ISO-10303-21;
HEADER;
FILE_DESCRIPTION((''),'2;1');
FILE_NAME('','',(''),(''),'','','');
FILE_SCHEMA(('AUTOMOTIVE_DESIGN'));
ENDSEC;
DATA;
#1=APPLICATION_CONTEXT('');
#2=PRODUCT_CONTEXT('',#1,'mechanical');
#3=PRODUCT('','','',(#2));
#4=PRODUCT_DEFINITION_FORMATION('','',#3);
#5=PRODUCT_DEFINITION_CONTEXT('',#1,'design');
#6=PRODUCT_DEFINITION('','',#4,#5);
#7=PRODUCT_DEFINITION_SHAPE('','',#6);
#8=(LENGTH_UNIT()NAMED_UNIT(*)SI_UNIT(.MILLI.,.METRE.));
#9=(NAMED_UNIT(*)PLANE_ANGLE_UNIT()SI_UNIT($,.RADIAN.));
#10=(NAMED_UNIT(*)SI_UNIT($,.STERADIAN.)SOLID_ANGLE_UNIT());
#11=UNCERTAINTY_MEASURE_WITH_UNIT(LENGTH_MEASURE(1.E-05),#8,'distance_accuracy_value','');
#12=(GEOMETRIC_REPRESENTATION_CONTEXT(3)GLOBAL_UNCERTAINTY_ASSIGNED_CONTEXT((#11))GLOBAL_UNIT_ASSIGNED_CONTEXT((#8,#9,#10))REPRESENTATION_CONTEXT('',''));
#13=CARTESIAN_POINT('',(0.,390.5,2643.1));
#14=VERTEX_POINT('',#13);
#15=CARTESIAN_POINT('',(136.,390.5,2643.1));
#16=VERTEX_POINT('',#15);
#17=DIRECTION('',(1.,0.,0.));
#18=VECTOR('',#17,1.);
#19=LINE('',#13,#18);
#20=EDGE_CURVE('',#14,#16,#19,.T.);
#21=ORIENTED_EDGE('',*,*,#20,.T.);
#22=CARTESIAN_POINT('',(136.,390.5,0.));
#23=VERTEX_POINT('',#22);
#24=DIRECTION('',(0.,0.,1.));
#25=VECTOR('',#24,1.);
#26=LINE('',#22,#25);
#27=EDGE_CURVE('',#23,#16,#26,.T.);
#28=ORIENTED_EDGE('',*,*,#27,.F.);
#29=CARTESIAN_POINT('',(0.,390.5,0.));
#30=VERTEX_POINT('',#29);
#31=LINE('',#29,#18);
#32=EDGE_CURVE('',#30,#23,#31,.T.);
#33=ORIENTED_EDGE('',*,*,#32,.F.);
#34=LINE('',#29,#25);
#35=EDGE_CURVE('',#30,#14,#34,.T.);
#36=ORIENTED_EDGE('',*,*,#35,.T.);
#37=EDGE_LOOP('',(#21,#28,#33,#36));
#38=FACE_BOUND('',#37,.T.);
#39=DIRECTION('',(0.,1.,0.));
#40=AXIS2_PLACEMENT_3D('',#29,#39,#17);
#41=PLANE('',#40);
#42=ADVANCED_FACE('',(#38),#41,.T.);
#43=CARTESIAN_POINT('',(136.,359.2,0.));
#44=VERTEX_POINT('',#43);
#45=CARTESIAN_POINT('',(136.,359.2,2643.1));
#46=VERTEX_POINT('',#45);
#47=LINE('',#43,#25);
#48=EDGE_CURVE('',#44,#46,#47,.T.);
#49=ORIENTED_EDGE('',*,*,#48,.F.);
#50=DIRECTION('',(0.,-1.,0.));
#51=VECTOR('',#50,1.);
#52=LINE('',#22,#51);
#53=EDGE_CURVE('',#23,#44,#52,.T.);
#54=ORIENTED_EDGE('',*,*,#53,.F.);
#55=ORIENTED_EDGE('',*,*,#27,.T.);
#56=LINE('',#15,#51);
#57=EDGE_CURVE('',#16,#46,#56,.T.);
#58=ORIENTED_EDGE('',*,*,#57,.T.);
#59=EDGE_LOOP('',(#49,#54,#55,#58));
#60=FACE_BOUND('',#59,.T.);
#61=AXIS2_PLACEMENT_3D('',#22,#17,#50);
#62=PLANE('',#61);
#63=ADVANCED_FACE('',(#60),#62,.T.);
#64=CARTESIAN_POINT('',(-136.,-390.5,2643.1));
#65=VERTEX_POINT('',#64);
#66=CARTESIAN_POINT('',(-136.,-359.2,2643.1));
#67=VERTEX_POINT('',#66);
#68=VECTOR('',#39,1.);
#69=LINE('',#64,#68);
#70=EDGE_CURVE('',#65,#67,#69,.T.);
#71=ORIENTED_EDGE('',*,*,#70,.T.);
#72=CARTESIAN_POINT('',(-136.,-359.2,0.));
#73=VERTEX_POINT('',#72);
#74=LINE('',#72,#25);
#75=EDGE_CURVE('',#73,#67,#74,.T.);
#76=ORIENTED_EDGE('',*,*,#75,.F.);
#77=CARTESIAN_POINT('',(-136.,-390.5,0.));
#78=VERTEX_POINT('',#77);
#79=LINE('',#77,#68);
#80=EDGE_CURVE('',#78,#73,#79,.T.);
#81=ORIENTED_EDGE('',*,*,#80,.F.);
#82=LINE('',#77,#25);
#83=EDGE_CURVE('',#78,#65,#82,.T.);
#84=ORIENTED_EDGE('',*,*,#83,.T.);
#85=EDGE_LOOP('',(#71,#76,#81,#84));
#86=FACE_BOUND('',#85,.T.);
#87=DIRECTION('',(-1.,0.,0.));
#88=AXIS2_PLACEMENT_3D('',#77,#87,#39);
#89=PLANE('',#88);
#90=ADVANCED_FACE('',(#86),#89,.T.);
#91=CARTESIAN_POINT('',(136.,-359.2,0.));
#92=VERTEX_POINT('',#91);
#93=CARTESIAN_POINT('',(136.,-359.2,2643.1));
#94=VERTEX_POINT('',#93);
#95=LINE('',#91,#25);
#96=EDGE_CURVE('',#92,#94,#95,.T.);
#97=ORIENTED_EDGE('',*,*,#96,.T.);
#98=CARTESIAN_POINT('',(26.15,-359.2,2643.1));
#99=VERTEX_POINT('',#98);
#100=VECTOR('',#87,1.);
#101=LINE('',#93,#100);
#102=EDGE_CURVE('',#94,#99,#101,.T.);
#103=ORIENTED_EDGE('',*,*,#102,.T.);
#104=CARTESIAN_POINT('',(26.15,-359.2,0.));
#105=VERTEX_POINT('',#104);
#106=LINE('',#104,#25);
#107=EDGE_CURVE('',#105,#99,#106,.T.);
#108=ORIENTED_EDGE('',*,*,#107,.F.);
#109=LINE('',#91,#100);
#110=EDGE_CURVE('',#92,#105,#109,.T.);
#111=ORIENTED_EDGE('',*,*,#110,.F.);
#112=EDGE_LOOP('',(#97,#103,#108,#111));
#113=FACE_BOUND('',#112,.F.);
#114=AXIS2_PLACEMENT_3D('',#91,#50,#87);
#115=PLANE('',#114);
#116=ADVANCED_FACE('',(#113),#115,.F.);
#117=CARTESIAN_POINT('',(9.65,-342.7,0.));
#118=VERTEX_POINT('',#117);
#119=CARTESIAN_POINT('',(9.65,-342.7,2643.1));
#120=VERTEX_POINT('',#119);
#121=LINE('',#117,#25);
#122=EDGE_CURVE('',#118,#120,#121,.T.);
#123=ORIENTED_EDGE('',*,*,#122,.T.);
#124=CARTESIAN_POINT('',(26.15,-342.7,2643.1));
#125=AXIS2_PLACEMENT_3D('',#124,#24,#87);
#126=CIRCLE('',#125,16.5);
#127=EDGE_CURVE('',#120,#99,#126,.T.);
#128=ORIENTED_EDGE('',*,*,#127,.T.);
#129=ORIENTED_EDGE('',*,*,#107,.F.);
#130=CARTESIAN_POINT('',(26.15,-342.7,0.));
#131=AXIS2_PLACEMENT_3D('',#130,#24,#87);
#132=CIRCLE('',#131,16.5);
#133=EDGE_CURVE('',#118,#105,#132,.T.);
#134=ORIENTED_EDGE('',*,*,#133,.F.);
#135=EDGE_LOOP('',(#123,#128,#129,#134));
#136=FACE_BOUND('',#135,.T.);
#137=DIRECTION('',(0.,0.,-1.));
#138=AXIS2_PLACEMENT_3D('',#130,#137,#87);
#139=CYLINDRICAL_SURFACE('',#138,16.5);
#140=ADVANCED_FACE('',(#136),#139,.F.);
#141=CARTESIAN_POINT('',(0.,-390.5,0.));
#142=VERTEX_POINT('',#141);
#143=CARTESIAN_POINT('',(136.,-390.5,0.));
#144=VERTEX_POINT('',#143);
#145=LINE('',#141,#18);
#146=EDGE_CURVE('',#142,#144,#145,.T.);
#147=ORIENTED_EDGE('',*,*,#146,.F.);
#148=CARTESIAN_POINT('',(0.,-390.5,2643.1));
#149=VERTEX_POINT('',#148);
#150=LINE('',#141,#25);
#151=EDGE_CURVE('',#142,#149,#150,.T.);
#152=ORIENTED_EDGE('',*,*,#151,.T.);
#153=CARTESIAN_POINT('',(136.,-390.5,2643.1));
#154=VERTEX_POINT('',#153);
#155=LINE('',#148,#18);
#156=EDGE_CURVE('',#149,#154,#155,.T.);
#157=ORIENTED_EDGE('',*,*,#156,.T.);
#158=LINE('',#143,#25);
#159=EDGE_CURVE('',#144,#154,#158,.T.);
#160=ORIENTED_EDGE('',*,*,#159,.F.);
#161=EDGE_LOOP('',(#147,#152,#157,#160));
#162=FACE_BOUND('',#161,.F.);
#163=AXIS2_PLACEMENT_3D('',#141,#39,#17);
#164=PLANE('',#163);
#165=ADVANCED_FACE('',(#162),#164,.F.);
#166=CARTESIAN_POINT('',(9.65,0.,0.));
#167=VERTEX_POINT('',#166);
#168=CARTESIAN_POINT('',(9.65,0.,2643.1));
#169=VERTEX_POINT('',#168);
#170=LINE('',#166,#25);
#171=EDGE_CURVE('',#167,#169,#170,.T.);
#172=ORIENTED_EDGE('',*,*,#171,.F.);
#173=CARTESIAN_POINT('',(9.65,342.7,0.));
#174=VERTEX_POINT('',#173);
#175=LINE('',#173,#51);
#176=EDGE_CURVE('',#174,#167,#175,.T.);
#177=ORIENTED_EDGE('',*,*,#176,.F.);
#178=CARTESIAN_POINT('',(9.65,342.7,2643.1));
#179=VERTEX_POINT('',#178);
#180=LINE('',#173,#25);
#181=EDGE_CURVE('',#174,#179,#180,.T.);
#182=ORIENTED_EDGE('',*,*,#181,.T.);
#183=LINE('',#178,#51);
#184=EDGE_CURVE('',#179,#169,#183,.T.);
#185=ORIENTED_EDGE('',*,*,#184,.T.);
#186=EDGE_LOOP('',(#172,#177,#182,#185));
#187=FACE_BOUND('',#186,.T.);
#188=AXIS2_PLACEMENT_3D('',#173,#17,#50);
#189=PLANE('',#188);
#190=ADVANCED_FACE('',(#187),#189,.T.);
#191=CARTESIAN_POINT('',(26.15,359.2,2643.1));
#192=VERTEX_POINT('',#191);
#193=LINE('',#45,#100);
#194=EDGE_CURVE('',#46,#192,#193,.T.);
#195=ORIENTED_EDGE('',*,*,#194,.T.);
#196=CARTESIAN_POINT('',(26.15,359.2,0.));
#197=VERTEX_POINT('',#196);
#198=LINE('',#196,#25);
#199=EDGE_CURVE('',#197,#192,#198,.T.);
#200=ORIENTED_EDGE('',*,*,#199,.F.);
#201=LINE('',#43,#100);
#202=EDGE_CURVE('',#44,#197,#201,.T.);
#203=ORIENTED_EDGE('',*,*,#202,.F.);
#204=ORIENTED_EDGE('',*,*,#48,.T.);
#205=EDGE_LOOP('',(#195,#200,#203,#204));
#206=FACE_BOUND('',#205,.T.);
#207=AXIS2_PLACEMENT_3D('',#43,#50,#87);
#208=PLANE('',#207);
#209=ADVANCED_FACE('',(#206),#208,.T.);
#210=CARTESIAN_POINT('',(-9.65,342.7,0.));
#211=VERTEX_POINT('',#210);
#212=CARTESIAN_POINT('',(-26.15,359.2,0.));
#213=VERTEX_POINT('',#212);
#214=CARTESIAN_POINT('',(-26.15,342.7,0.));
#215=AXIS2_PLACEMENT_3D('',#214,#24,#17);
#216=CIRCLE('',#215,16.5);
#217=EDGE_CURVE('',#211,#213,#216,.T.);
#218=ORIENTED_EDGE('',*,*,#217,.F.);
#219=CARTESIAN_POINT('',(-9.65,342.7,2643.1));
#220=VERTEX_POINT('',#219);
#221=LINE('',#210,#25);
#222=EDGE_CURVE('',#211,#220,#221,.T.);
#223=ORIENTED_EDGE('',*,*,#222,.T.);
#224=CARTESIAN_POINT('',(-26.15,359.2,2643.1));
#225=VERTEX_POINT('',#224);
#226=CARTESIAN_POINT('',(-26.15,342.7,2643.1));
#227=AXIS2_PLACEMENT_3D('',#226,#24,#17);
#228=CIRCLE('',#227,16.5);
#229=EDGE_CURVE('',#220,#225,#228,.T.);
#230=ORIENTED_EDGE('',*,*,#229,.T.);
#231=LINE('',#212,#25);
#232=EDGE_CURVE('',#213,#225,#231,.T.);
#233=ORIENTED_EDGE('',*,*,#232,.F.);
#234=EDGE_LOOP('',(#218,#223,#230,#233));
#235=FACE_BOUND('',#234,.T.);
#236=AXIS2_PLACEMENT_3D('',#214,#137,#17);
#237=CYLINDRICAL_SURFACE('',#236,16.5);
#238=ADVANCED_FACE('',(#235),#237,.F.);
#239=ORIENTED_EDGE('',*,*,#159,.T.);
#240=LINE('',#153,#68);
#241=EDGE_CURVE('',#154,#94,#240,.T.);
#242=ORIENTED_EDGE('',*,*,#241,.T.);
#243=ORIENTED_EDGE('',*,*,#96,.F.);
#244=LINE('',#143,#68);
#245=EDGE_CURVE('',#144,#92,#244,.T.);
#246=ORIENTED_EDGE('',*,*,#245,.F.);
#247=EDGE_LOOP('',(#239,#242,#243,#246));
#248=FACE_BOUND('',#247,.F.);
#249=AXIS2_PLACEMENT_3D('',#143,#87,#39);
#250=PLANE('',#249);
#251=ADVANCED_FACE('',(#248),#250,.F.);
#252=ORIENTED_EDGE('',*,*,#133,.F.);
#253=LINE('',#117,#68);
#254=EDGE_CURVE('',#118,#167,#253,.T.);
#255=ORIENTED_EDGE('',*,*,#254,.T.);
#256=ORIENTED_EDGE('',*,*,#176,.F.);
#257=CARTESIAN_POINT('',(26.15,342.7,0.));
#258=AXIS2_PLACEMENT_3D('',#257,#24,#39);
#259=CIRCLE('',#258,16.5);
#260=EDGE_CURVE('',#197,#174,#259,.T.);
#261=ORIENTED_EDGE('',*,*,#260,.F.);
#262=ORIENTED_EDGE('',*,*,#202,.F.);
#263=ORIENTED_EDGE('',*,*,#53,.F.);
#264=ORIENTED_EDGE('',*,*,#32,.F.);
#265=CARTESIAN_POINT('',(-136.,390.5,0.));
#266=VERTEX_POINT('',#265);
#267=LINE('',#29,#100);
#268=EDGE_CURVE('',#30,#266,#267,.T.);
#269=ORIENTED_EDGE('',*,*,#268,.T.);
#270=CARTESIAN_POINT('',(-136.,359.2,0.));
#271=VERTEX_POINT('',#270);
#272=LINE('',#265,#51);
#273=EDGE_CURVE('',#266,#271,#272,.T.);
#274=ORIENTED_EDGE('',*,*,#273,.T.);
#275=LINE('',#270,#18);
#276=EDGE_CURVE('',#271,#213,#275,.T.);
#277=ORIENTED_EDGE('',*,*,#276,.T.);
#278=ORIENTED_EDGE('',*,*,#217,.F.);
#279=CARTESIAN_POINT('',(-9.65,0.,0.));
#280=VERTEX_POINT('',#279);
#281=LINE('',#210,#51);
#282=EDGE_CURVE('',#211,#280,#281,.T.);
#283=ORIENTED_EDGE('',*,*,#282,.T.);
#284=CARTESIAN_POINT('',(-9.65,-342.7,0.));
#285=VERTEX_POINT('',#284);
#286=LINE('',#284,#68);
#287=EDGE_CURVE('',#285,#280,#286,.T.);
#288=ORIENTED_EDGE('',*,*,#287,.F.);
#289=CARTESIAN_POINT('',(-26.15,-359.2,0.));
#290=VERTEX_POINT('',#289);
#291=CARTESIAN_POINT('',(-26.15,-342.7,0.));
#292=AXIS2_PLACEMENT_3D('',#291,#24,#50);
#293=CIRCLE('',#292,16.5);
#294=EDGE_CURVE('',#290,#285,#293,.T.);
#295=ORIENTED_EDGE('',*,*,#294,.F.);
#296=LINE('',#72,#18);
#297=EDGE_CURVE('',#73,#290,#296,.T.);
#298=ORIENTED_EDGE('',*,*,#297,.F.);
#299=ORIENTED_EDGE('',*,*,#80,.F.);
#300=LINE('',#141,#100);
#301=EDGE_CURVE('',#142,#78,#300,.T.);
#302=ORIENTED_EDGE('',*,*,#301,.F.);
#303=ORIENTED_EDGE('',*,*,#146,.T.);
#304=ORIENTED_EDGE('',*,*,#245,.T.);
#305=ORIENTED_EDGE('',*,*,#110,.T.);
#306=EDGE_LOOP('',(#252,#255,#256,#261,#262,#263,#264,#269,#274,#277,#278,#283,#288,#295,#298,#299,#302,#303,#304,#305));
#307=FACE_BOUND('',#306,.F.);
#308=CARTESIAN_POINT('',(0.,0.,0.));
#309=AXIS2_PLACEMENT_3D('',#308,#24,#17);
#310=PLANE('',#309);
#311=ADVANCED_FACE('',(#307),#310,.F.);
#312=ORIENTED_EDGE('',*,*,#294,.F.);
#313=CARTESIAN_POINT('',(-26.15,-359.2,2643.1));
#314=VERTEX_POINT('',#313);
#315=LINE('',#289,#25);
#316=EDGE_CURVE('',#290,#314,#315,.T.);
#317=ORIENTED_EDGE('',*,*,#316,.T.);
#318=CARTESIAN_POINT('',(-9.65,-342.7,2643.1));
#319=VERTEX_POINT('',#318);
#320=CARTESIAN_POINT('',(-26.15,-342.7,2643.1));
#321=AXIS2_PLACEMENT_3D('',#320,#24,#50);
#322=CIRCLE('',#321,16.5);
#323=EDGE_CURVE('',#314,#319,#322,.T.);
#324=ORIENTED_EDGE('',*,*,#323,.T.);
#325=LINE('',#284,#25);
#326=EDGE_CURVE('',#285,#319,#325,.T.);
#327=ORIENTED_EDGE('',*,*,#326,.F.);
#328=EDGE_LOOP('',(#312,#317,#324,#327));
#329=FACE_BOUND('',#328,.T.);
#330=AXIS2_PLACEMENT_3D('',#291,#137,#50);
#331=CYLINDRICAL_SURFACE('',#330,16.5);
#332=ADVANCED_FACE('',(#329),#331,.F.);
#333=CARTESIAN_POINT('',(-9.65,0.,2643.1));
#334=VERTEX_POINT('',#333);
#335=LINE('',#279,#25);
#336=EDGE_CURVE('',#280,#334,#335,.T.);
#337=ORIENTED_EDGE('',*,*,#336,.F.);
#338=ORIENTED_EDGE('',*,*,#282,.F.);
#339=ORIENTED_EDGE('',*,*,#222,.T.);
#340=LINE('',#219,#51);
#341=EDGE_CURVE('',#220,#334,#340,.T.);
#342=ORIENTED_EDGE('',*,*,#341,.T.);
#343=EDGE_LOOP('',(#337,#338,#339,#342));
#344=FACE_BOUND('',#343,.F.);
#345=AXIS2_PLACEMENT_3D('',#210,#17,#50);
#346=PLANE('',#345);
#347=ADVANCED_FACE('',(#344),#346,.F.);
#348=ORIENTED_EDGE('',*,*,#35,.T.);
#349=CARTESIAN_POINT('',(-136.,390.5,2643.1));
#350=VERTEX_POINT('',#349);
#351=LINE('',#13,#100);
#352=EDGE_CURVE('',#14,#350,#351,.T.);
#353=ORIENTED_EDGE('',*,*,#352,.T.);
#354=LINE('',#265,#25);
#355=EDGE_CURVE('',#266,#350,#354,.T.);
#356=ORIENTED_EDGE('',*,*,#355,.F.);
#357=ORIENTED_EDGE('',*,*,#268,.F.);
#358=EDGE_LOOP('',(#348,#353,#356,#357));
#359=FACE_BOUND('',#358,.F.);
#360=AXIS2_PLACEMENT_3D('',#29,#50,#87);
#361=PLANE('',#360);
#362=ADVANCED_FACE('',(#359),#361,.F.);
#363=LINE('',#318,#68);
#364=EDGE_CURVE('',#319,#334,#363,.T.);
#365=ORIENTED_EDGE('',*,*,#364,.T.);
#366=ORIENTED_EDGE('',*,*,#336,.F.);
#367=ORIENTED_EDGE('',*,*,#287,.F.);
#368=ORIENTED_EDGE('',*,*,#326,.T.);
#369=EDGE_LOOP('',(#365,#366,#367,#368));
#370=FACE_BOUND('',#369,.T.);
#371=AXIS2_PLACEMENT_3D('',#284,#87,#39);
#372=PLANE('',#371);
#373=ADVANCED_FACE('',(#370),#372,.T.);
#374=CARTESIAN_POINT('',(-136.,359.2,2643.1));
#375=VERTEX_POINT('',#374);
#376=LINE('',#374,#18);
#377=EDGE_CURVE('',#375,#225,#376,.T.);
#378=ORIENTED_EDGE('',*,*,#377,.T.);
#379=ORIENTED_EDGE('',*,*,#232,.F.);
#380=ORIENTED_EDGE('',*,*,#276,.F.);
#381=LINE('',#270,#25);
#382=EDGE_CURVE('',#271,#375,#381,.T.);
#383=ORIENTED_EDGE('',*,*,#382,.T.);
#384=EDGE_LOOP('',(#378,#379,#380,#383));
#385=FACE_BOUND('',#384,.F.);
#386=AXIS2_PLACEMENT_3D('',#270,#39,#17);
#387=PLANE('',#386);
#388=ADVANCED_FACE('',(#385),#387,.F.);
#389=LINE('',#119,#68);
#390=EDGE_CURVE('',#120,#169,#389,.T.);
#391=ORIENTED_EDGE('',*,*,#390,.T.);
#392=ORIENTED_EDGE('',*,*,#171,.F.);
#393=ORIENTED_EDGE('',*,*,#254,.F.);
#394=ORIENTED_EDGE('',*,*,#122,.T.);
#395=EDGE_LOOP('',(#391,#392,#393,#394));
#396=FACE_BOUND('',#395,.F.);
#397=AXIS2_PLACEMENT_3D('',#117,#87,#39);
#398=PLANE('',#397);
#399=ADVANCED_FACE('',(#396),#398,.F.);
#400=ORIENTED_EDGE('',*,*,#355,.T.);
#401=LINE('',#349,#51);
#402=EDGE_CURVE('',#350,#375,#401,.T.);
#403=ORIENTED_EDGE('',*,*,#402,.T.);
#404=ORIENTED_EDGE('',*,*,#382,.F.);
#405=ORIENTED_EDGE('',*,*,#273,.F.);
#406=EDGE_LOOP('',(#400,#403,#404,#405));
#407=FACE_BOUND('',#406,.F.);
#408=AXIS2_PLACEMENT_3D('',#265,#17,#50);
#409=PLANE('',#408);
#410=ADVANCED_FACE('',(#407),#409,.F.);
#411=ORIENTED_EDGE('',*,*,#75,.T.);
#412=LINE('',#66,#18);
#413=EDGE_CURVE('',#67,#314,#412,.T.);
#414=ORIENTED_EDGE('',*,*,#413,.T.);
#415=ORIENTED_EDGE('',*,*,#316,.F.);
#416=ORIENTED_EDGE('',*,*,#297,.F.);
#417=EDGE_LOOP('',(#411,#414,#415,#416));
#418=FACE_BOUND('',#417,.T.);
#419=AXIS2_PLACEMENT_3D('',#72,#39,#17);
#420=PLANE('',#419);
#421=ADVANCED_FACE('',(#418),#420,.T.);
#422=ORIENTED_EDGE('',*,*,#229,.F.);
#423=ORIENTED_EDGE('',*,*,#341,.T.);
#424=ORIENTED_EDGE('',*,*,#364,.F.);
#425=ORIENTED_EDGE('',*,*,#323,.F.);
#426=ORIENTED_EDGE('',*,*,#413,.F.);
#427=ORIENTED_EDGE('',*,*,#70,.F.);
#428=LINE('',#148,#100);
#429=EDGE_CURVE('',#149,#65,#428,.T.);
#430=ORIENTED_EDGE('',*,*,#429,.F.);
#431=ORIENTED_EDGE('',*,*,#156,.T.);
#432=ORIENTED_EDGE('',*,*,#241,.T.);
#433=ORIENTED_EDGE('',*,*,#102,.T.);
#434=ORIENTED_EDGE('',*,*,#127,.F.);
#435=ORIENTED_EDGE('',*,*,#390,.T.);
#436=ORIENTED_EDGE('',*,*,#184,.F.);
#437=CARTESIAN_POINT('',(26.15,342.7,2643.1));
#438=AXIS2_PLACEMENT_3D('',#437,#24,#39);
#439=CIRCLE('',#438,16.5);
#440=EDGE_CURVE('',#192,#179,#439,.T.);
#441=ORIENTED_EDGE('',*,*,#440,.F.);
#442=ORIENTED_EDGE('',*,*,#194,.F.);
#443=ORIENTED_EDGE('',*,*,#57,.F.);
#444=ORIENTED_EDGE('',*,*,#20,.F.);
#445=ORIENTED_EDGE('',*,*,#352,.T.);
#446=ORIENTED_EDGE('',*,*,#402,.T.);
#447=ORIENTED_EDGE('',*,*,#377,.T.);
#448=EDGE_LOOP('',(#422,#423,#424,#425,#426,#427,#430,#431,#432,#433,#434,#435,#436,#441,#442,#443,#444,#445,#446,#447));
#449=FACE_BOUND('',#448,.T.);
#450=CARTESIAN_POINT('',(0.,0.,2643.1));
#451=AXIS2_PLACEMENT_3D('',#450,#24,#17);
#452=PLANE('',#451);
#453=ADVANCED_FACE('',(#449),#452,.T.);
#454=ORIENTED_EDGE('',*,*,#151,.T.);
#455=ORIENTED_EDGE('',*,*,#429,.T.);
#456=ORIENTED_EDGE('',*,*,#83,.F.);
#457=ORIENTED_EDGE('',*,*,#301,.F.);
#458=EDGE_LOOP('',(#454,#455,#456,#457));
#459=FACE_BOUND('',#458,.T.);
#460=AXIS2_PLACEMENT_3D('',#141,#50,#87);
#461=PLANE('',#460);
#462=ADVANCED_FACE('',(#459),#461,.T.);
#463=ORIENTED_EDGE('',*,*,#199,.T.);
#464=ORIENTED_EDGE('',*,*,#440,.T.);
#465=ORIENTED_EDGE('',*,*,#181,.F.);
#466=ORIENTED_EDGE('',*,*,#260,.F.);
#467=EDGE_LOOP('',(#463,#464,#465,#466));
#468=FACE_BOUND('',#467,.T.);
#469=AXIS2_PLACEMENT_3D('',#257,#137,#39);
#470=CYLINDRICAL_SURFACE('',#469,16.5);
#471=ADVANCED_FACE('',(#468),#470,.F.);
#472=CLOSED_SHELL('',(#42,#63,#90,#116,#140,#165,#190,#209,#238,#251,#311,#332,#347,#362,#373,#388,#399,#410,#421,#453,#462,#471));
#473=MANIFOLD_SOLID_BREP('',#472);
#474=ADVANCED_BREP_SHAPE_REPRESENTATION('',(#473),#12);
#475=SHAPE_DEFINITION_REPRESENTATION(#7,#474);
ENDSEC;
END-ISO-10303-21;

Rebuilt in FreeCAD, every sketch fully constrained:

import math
import FreeCAD as App
import Part
import Sketcher
Q = App.Units.Quantity

doc = App.newDocument("Part")
body = doc.addObject("PartDesign::Body", "Body")

# Sketch on XY plane
sketch1 = body.newObject("Sketcher::SketchObject", "Sketch")
sketch1.AttachmentSupport = (doc.getObject("XY_Plane"), [""])
sketch1.MapMode = "FlatFace"
sketch1.addGeometry(Part.LineSegment(App.Vector(-136, -359, 0), App.Vector(-136, -390, 0)), False)
sketch1.addGeometry(Part.LineSegment(App.Vector(-136, -390, 0), App.Vector(136, -390, 0)), False)
sketch1.addGeometry(Part.LineSegment(App.Vector(136, -390, 0), App.Vector(136, -359, 0)), False)
sketch1.addGeometry(Part.LineSegment(App.Vector(136, -359, 0), App.Vector(26, -359, 0)), False)
sketch1.addGeometry(Part.ArcOfCircle(Part.Circle(App.Vector(26, -343, 0), App.Vector(0, 0, 1), 16), math.radians(180), math.radians(270)), False)
sketch1.addGeometry(Part.LineSegment(App.Vector(10, -343, 0), App.Vector(10, 343, 0)), False)
sketch1.addGeometry(Part.ArcOfCircle(Part.Circle(App.Vector(26, 343, 0), App.Vector(0, 0, 1), 16), math.radians(90), math.radians(180)), False)
sketch1.addGeometry(Part.LineSegment(App.Vector(26, 359, 0), App.Vector(136, 359, 0)), False)
sketch1.addGeometry(Part.LineSegment(App.Vector(136, 359, 0), App.Vector(136, 390, 0)), False)
sketch1.addGeometry(Part.LineSegment(App.Vector(136, 390, 0), App.Vector(-136, 390, 0)), False)
sketch1.addGeometry(Part.LineSegment(App.Vector(-136, 390, 0), App.Vector(-136, 359, 0)), False)
sketch1.addGeometry(Part.LineSegment(App.Vector(-136, 359, 0), App.Vector(-26, 359, 0)), False)
sketch1.addGeometry(Part.ArcOfCircle(Part.Circle(App.Vector(-26, 343, 0), App.Vector(0, 0, 1), 16), math.radians(0), math.radians(90)), False)
sketch1.addGeometry(Part.LineSegment(App.Vector(-10, 343, 0), App.Vector(-10, -343, 0)), False)
sketch1.addGeometry(Part.ArcOfCircle(Part.Circle(App.Vector(-26, -343, 0), App.Vector(0, 0, 1), 16), math.radians(-90), math.radians(0)), False)
sketch1.addGeometry(Part.LineSegment(App.Vector(-26, -359, 0), App.Vector(-136, -359, 0)), False)
sketch1.addConstraint(Sketcher.Constraint("Coincident", 0, 2, 1, 1))
sketch1.addConstraint(Sketcher.Constraint("Coincident", 1, 2, 2, 1))
sketch1.addConstraint(Sketcher.Constraint("Coincident", 2, 2, 3, 1))
sketch1.addConstraint(Sketcher.Constraint("Tangent", 3, 2, 4, 2))
sketch1.addConstraint(Sketcher.Constraint("Tangent", 4, 1, 5, 1))
sketch1.addConstraint(Sketcher.Constraint("Tangent", 5, 2, 6, 2))
sketch1.addConstraint(Sketcher.Constraint("Tangent", 6, 1, 7, 1))
sketch1.addConstraint(Sketcher.Constraint("Coincident", 7, 2, 8, 1))
sketch1.addConstraint(Sketcher.Constraint("Coincident", 8, 2, 9, 1))
sketch1.addConstraint(Sketcher.Constraint("Coincident", 9, 2, 10, 1))
sketch1.addConstraint(Sketcher.Constraint("Coincident", 10, 2, 11, 1))
sketch1.addConstraint(Sketcher.Constraint("Tangent", 11, 2, 12, 2))
sketch1.addConstraint(Sketcher.Constraint("Tangent", 12, 1, 13, 1))
sketch1.addConstraint(Sketcher.Constraint("Tangent", 13, 2, 14, 2))
sketch1.addConstraint(Sketcher.Constraint("Tangent", 14, 1, 15, 1))
sketch1.addConstraint(Sketcher.Constraint("Coincident", 15, 2, 0, 1))
sketch1.addConstraint(Sketcher.Constraint("Vertical", 0))
sketch1.addConstraint(Sketcher.Constraint("Horizontal", 1))
sketch1.addConstraint(Sketcher.Constraint("Vertical", 2))
sketch1.addConstraint(Sketcher.Constraint("Horizontal", 3))
sketch1.addConstraint(Sketcher.Constraint("Vertical", 5))
sketch1.addConstraint(Sketcher.Constraint("Horizontal", 7))
sketch1.addConstraint(Sketcher.Constraint("Vertical", 8))
sketch1.addConstraint(Sketcher.Constraint("Horizontal", 9))
sketch1.addConstraint(Sketcher.Constraint("Vertical", 10))
sketch1.addConstraint(Sketcher.Constraint("Horizontal", 11))
sketch1.addConstraint(Sketcher.Constraint("Vertical", 13))
sketch1.addConstraint(Sketcher.Constraint("Horizontal", 15))
sketch1.addConstraint(Sketcher.Constraint("Equal", 4, 6))
sketch1.addConstraint(Sketcher.Constraint("Equal", 6, 12))
sketch1.addConstraint(Sketcher.Constraint("Equal", 12, 14))
sketch1.addConstraint(Sketcher.Constraint("Symmetric", 4, 3, 12, 3, -1, 1))
sketch1.addConstraint(Sketcher.Constraint("Symmetric", 0, 2, 8, 2, -1, 1))
sketch1.addConstraint(Sketcher.Constraint("Symmetric", 7, 2, 10, 2, -2))
sketch1.addConstraint(Sketcher.Constraint("Symmetric", 2, 2, 15, 2, -2))
sketch1.addConstraint(Sketcher.Constraint("Radius", 4, Q("16.5 mm")))
sketch1.addConstraint(Sketcher.Constraint("DistanceY", 0, 2, 0, 1, Q("31.3 mm")))
sketch1.addConstraint(Sketcher.Constraint("DistanceX", 0, 2, -1, 1, Q("136 mm")))
sketch1.addConstraint(Sketcher.Constraint("DistanceY", 0, 2, -1, 1, Q("390.5 mm")))
sketch1.addConstraint(Sketcher.Constraint("DistanceX", -1, 1, 4, 1, Q("9.65 mm")))
pad1 = body.newObject("PartDesign::Pad", "Pad")
pad1.Profile = sketch1
pad1.Length = 2643.1

doc.recompute()
